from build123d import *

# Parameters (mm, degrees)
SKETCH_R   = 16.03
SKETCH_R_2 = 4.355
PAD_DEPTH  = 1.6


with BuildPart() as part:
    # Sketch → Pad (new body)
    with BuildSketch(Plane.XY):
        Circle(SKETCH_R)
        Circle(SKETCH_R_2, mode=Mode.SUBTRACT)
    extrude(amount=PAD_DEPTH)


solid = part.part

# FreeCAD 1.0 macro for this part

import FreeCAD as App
import Part
import Sketcher
from FreeCAD import Vector
Q = App.Units.Quantity

doc = App.newDocument("Part")
body = doc.addObject("PartDesign::Body", "Body")

# Sketch on XY plane
sketch1 = body.newObject("Sketcher::SketchObject", "Sketch")
sketch1.AttachmentSupport = (doc.getObject("XY_Plane"), [""])
sketch1.MapMode = "FlatFace"
sketch1.addGeometry([
    Part.Circle(Vector(0, 0, 0), Vector(0, 0, 1), 16),
    Part.Circle(Vector(0, 0, 0), Vector(0, 0, 1), 4.4),
], False)
sketch1.addConstraint([
    Sketcher.Constraint("Coincident", 0, 3, -1, 1),
    Sketcher.Constraint("Coincident", 1, 3, -1, 1),
    Sketcher.Constraint("Diameter", 0, Q("32.06 mm")),
    Sketcher.Constraint("Diameter", 1, Q("8.71 mm")),
])
pad1 = body.newObject("PartDesign::Pad", "Pad")
pad1.Profile = sketch1
pad1.Length = 1.6

doc.recompute()
